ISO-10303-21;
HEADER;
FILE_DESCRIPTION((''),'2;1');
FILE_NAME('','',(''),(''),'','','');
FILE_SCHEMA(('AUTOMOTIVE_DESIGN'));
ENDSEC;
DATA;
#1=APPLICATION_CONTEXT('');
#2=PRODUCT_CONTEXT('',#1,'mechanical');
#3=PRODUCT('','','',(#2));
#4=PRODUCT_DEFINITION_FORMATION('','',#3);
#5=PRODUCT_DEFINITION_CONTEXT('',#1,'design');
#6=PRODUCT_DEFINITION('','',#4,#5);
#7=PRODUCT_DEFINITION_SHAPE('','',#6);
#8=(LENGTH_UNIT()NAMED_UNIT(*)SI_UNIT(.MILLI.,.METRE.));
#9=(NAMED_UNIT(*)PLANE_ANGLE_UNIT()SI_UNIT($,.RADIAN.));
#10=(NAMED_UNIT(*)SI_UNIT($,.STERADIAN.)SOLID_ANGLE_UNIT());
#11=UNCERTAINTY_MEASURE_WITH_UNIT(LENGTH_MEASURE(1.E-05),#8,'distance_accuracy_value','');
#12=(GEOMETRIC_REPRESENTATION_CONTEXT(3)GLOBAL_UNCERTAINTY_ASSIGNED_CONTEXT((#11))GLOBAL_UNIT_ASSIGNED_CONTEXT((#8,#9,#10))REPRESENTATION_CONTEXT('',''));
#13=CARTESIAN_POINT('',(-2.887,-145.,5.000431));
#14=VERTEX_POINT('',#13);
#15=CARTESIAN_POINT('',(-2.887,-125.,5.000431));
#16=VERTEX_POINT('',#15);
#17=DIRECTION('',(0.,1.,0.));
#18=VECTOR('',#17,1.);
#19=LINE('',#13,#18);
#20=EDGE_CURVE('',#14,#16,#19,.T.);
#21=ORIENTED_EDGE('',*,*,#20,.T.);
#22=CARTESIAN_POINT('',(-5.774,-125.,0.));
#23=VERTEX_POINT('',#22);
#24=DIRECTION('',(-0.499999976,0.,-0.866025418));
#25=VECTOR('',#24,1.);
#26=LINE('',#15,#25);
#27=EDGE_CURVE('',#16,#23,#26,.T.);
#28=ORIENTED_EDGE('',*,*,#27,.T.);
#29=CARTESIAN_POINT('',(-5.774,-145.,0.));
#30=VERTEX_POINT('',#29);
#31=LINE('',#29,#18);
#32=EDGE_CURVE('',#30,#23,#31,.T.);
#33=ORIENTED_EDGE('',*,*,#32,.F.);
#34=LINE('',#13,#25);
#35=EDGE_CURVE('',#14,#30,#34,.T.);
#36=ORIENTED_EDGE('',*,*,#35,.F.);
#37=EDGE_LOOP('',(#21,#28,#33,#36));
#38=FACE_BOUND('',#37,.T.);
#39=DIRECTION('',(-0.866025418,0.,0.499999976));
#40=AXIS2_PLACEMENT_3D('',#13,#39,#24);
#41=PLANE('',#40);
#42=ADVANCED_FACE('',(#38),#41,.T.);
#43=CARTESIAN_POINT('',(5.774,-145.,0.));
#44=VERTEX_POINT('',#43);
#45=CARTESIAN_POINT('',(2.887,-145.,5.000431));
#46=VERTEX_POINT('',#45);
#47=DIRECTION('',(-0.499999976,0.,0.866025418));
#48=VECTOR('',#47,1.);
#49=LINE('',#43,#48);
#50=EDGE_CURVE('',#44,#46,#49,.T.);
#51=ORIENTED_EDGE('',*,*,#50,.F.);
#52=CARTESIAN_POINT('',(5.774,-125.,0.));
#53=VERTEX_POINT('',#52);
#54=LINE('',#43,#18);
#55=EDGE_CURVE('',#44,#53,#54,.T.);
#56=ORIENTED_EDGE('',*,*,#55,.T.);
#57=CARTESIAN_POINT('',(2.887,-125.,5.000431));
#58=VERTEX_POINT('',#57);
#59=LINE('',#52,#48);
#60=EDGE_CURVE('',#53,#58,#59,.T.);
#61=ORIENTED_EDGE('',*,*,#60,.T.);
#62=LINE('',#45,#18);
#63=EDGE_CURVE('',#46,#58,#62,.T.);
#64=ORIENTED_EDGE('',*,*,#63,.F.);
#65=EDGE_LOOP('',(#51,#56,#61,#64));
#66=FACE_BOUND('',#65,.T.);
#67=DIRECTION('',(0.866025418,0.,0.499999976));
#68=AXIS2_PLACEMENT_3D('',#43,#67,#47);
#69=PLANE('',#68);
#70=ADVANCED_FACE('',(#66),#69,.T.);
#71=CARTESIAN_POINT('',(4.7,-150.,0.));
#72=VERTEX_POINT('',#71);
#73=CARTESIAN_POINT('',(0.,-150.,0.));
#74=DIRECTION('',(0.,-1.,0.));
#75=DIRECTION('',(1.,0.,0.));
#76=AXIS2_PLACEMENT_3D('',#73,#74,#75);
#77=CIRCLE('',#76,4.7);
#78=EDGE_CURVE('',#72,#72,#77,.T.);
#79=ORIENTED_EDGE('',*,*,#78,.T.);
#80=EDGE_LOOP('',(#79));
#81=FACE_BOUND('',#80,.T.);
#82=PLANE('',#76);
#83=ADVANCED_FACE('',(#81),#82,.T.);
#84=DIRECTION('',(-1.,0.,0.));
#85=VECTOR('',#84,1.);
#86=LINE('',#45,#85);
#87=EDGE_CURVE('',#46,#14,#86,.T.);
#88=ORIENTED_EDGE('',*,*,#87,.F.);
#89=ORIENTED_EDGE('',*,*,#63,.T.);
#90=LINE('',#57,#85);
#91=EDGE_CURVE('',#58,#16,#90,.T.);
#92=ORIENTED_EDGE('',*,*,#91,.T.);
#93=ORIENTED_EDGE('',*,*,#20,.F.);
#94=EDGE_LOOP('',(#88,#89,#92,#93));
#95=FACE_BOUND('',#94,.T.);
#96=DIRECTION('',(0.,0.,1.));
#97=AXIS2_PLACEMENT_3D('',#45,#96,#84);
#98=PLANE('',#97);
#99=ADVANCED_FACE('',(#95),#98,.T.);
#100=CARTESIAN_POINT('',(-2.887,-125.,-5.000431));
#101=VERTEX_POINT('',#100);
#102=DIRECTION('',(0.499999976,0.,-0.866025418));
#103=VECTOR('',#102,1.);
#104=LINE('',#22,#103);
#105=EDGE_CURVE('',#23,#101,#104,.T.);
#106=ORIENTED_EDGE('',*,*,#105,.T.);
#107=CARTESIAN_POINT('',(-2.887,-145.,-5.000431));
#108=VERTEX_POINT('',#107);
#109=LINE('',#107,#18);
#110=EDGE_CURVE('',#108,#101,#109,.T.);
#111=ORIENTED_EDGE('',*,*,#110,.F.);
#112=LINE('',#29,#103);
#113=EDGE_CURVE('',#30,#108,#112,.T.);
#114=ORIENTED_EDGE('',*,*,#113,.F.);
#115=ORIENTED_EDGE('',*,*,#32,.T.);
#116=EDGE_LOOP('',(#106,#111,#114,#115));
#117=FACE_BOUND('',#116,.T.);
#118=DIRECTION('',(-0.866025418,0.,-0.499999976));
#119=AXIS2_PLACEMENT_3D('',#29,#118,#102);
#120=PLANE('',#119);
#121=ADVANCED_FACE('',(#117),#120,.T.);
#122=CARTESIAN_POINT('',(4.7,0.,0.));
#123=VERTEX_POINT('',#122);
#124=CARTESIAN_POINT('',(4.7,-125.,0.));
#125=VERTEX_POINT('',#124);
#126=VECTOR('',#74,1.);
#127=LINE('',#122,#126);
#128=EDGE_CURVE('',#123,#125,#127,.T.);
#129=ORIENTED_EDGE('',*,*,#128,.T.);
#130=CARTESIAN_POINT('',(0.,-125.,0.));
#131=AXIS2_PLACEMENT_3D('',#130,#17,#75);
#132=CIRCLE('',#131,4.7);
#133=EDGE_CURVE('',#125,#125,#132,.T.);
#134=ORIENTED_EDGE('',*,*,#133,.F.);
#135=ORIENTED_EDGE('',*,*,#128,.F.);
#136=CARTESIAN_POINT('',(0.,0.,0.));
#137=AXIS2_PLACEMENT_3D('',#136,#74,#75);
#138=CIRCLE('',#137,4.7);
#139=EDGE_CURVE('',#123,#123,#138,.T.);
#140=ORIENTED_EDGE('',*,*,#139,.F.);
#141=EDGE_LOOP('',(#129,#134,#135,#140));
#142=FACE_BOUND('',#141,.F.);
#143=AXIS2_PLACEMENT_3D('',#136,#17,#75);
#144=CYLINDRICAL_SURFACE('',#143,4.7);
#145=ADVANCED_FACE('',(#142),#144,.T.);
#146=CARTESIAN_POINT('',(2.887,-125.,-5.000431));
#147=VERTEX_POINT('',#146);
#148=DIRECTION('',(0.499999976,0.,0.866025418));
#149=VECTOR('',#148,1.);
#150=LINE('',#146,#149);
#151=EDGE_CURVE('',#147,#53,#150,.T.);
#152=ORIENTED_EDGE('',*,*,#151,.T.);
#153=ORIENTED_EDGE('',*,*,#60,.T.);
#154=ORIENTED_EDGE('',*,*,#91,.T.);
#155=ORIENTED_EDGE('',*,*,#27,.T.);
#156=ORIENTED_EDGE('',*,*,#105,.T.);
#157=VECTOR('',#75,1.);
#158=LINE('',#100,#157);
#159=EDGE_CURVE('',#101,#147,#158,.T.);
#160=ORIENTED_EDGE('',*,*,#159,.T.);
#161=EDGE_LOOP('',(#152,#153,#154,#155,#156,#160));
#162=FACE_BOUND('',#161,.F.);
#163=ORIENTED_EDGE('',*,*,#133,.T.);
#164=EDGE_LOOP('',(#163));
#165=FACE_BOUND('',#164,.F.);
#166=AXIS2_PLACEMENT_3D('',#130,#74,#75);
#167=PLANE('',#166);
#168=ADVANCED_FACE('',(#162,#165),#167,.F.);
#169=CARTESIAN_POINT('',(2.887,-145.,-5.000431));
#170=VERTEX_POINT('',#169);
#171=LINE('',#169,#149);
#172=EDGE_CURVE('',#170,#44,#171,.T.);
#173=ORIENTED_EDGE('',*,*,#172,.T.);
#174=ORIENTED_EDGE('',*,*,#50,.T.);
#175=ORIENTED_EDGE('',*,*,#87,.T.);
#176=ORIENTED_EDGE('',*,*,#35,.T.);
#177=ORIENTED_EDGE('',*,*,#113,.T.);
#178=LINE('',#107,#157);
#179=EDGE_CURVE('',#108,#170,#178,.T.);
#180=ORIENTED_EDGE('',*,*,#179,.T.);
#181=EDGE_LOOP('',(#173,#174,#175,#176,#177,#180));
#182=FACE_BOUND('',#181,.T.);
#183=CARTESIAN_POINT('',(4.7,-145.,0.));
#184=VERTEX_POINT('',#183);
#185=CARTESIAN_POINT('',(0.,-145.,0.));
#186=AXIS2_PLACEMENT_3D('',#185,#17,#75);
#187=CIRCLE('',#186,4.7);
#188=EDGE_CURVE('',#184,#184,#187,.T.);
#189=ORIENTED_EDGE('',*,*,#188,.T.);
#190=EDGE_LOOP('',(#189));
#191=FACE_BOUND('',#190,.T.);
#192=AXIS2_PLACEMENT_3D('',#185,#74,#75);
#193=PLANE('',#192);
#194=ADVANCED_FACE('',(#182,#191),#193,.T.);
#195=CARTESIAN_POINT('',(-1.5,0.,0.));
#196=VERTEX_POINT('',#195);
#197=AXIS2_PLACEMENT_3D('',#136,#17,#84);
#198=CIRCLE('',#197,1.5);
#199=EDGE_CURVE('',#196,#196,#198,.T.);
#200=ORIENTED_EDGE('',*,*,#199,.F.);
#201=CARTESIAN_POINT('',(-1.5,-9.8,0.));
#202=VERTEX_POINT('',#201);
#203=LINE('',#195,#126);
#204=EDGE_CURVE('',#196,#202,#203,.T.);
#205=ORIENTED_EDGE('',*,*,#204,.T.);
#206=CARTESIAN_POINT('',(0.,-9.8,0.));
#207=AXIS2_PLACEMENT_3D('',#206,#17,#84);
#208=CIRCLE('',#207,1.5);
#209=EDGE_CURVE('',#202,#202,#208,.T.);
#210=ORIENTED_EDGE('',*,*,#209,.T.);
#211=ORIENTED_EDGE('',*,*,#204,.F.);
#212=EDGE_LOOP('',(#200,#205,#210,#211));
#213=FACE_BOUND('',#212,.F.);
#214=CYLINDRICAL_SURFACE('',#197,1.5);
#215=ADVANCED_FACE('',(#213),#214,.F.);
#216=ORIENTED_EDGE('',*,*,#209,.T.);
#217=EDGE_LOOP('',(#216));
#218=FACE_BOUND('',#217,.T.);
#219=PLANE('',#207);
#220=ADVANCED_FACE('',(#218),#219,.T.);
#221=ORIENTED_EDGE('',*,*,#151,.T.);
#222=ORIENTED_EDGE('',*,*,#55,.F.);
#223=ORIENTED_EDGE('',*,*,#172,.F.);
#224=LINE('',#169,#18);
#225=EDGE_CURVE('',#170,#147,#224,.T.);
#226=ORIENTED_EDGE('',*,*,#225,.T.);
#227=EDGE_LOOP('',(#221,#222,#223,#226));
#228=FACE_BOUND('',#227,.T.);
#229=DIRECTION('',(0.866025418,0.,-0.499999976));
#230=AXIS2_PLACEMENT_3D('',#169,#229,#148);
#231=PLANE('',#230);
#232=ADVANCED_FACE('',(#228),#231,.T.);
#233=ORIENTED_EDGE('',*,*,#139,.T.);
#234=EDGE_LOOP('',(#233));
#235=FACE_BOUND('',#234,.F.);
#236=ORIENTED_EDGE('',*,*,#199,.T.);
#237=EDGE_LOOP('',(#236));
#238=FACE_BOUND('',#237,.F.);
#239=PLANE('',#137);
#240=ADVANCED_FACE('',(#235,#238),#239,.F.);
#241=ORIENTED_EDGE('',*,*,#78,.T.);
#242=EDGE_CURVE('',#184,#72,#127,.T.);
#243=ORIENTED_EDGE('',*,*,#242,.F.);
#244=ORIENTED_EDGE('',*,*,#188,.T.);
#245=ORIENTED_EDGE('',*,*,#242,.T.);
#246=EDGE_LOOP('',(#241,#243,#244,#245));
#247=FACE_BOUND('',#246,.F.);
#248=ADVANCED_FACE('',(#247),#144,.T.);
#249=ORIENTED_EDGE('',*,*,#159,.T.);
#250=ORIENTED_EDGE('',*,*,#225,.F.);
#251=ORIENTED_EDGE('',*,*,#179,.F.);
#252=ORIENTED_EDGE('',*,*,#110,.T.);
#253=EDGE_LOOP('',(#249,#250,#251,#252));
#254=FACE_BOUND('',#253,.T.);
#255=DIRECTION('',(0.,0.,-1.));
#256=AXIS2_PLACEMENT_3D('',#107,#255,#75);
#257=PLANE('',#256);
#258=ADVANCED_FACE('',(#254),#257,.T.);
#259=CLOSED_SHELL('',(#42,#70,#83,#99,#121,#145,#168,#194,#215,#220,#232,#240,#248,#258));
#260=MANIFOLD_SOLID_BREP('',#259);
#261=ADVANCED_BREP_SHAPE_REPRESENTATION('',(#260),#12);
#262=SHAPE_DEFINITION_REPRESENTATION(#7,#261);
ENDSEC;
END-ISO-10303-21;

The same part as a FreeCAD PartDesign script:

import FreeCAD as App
import Part
import Sketcher
Q = App.Units.Quantity


def add_polygon(sketch, points):
    """Adds a closed chain of lines whose ends are joined by coincident constraints."""
    first, n = sketch.GeometryCount, len(points)
    for a, b in zip(points, points[1:] + points[:1]):
        sketch.addGeometry(Part.LineSegment(App.Vector(*a, 0), App.Vector(*b, 0)), False)
    for i in range(n):
        sketch.addConstraint(Sketcher.Constraint("Coincident", first + i, 2, first + (i + 1) % n, 1))

doc = App.newDocument("Part")
body = doc.addObject("PartDesign::Body", "Body")

# Sketch on XZ plane
sketch1 = body.newObject("Sketcher::SketchObject", "Sketch")
sketch1.AttachmentSupport = (doc.getObject("XZ_Plane"), [""])
sketch1.MapMode = "FlatFace"
sketch1.addGeometry(Part.Circle(App.Vector(0, 0, 0), App.Vector(0, 0, 1), 4.7), False)
sketch1.addConstraint([
    Sketcher.Constraint("Coincident", 0, 3, -1, 1),
    Sketcher.Constraint("Diameter", 0, 9.4),
])
pad1 = body.newObject("PartDesign::Pad", "Pad")
pad1.Profile = sketch1
pad1.Length = 150

# Sketch on XZ plane
sketch2 = body.newObject("Sketcher::SketchObject", "Sketch001")
sketch2.AttachmentSupport = (doc.getObject("XZ_Plane"), [""])
sketch2.MapMode = "FlatFace"
sketch2.addGeometry(Part.Circle(App.Vector(0, 0, 0), App.Vector(0, 0, 1), 1.5), False)
sketch2.addConstraint([
    Sketcher.Constraint("Coincident", 0, 3, -1, 1),
    Sketcher.Constraint("Diameter", 0, 3.0),
])
pocket1 = body.newObject("PartDesign::Pocket", "Pocket")
pocket1.Profile = sketch2
pocket1.Length = 9.8
pocket1.Reversed = True

# Sketch on XZ plane
sketch3 = body.newObject("Sketcher::SketchObject", "Sketch002")
sketch3.AttachmentSupport = (doc.getObject("XZ_Plane"), [""])
sketch3.MapMode = "FlatFace"
sketch3.AttachmentOffset = App.Placement(App.Vector(0, 0, 145), App.Rotation())
add_polygon(sketch3, [(3, 5), (-3, 5), (-6, 0), (-3, -5), (3, -5), (6, 0)])  # lines 0-5
sketch3.addConstraint([
    Sketcher.Constraint("Horizontal", 0),
    Sketcher.Constraint("Horizontal", 3),
    Sketcher.Constraint("Symmetric", 0, 2, 3, 2, -1, 1),
    Sketcher.Constraint("Symmetric", 1, 2, 4, 2, -1, 1),
    Sketcher.Constraint("PointOnObject", 1, 2, -1),
    Sketcher.Constraint("Parallel", 2, 5),
    Sketcher.Constraint("Vertical", 0, 2, 2, 2),
    Sketcher.Constraint("Angle", 1, Q("-119.999998 deg")),
    Sketcher.Constraint("DistanceX", 0, 2, 0, 1, 5.774),
    Sketcher.Constraint("Distance", 1, 5.774),
])
pad2 = body.newObject("PartDesign::Pad", "Pad001")
pad2.Profile = sketch3
pad2.Length = 20
pad2.Reversed = True

doc.recompute()
